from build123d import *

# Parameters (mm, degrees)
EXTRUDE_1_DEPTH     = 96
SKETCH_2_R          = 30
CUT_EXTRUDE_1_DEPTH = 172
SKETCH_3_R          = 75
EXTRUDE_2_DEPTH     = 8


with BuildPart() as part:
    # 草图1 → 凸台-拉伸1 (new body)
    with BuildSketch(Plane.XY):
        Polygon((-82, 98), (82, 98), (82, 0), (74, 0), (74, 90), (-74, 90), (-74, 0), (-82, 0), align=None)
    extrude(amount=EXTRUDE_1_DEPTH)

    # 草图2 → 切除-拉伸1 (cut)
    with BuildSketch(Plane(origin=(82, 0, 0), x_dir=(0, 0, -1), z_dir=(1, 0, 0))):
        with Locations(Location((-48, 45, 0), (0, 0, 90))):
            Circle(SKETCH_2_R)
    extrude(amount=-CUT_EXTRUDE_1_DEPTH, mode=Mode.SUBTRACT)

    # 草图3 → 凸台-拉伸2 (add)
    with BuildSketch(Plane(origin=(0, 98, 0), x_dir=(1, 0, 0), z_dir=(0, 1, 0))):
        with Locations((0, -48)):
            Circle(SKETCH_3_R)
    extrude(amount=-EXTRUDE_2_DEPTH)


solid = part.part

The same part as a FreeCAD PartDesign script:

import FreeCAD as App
import Part
import Sketcher
from FreeCAD import Vector

doc = App.newDocument("Part")
body = doc.addObject("PartDesign::Body", "Body")

# Sketch on XY plane
sketch1 = body.newObject("Sketcher::SketchObject", "Sketch")
sketch1.AttachmentSupport = (doc.getObject("XY_Plane"), [""])
sketch1.MapMode = "FlatFace"
sketch1.addGeometry([
    Part.LineSegment(Vector(82, 98, 0), Vector(-82, 98, 0)),  # 0
    Part.LineSegment(Vector(-82, 98, 0), Vector(-82, 0, 0)),  # 1
    Part.LineSegment(Vector(-82, 0, 0), Vector(-74, 0, 0)),  # 2
    Part.LineSegment(Vector(-74, 0, 0), Vector(-74, 90, 0)),  # 3
    Part.LineSegment(Vector(-74, 90, 0), Vector(74, 90, 0)),  # 4
    Part.LineSegment(Vector(74, 90, 0), Vector(74, 0, 0)),  # 5
    Part.LineSegment(Vector(74, 0, 0), Vector(82, 0, 0)),  # 6
    Part.LineSegment(Vector(82, 0, 0), Vector(82, 98, 0)),  # 7
], False)
sketch1.addConstraint([
    Sketcher.Constraint("Coincident", 0, 2, 1, 1),
    Sketcher.Constraint("Coincident", 1, 2, 2, 1),
    Sketcher.Constraint("Coincident", 2, 2, 3, 1),
    Sketcher.Constraint("Coincident", 3, 2, 4, 1),
    Sketcher.Constraint("Coincident", 4, 2, 5, 1),
    Sketcher.Constraint("Coincident", 5, 2, 6, 1),
    Sketcher.Constraint("Coincident", 6, 2, 7, 1),
    Sketcher.Constraint("Coincident", 7, 2, 0, 1),
    Sketcher.Constraint("Horizontal", 0),
    Sketcher.Constraint("Vertical", 1),
    Sketcher.Constraint("Horizontal", 2),
    Sketcher.Constraint("Vertical", 3),
    Sketcher.Constraint("Horizontal", 4),
    Sketcher.Constraint("Vertical", 5),
    Sketcher.Constraint("Horizontal", 6),
    Sketcher.Constraint("Vertical", 7),
    Sketcher.Constraint("Symmetric", 2, 2, 5, 2, -1, 1),
    Sketcher.Constraint("Symmetric", 1, 2, 6, 2, -2),
    Sketcher.Constraint("DistanceX", 0, 2, 0, 1, 164.0),
    Sketcher.Constraint("DistanceX", 2, 1, 2, 2, 8.0),
    Sketcher.Constraint("DistanceY", 1, 2, 1, 1, 98.0),
    Sketcher.Constraint("DistanceY", 3, 1, 3, 2, 90.0),
])
pad1 = body.newObject("PartDesign::Pad", "Pad")
pad1.Profile = sketch1
pad1.Length = 96

# Sketch on YZ plane
sketch2 = body.newObject("Sketcher::SketchObject", "Sketch001")
sketch2.AttachmentSupport = (doc.getObject("YZ_Plane"), [""])
sketch2.MapMode = "FlatFace"
sketch2.AttachmentOffset = App.Placement(Vector(0, 0, 82), App.Rotation())
sketch2.addGeometry(Part.Circle(Vector(45, 48, 0), Vector(0, 0, 1), 30), False)
sketch2.addConstraint([
    Sketcher.Constraint("Diameter", 0, 60.0),
    Sketcher.Constraint("DistanceX", -1, 1, 0, 3, 45.0),
    Sketcher.Constraint("DistanceY", -1, 1, 0, 3, 48.0),
])
pocket1 = body.newObject("PartDesign::Pocket", "Pocket")
pocket1.Profile = sketch2
pocket1.Length = 172

# Sketch on XZ plane
sketch3 = body.newObject("Sketcher::SketchObject", "Sketch002")
sketch3.AttachmentSupport = (doc.getObject("XZ_Plane"), [""])
sketch3.MapMode = "FlatFace"
sketch3.AttachmentOffset = App.Placement(Vector(0, 0, -98), App.Rotation())
sketch3.addGeometry(Part.Circle(Vector(0, 48, 0), Vector(0, 0, 1), 75), False)
sketch3.addConstraint([
    Sketcher.Constraint("PointOnObject", 0, 3, -2),
    Sketcher.Constraint("Diameter", 0, 150.0),
    Sketcher.Constraint("DistanceY", -1, 1, 0, 3, 48.0),
])
pad2 = body.newObject("PartDesign::Pad", "Pad001")
pad2.Profile = sketch3
pad2.Length = 8

doc.recompute()
